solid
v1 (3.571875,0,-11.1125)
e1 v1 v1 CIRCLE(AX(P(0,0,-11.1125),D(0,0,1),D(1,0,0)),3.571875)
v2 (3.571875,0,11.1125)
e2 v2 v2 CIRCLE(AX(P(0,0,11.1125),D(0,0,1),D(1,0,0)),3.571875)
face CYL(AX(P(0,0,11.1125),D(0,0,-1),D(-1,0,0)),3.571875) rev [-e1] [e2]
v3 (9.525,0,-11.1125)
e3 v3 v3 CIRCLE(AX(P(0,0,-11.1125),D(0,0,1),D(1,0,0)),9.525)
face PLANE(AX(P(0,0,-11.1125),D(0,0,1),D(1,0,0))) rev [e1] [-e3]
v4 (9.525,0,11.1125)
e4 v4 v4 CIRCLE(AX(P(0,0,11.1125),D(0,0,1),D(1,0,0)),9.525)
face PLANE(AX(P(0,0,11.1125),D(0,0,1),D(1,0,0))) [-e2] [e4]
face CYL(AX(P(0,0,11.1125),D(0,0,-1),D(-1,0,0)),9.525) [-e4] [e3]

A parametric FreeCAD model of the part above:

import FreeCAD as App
import Part
import Sketcher
from FreeCAD import Vector
Q = App.Units.Quantity

doc = App.newDocument("Part")
body = doc.addObject("PartDesign::Body", "Body")

# Sketch on XY plane
sketch1 = body.newObject("Sketcher::SketchObject", "Sketch")
sketch1.AttachmentSupport = (doc.getObject("XY_Plane"), [""])
sketch1.MapMode = "FlatFace"
sketch1.addGeometry(Part.Circle(Vector(0, 0, 0), Vector(0, 0, 1), 9.5), False)
sketch1.addGeometry(Part.Circle(Vector(0, 0, 0), Vector(0, 0, 1), 3.6), False)
sketch1.addConstraint(Sketcher.Constraint("Coincident", 0, 3, -1, 1))
sketch1.addConstraint(Sketcher.Constraint("Coincident", 1, 3, -1, 1))
sketch1.addConstraint(Sketcher.Constraint("Diameter", 0, Q("0.75 in")))
sketch1.addConstraint(Sketcher.Constraint("Diameter", 1, Q("0.28125 in")))
pad1 = body.newObject("PartDesign::Pad", "Pad")
pad1.Profile = sketch1
pad1.Length = Q("0.875 in")
pad1.Midplane = True

doc.recompute()
